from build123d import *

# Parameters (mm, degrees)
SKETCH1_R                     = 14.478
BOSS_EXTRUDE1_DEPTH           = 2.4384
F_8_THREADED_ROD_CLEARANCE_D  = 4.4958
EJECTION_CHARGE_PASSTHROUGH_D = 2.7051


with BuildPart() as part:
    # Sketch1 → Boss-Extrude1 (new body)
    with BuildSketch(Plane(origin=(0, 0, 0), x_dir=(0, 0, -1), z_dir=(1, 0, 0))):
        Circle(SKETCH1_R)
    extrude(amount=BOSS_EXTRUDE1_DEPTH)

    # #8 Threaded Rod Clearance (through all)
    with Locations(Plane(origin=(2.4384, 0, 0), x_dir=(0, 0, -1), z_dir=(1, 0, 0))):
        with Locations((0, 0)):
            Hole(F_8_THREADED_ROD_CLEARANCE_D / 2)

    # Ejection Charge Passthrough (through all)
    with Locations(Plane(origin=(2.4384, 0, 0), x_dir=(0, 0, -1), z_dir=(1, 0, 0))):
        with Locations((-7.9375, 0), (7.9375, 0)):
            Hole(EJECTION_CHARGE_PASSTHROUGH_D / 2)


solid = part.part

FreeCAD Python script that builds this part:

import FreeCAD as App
import Part
import Sketcher
from FreeCAD import Vector
Q = App.Units.Quantity

doc = App.newDocument("Part")
body = doc.addObject("PartDesign::Body", "Body")

# Sketch on YZ plane
sketch1 = doc.addObject("Sketcher::SketchObject", "Sketch")
body.addObject(sketch1)
sketch1.AttachmentSupport = (doc.YZ_Plane, [""])
sketch1.MapMode = "FlatFace"
sketch1.addGeometry(Part.Circle(Vector(0, 0, 0), Vector(0, 0, 1), 14), False)
sketch1.addConstraint(Sketcher.Constraint("Coincident", 0, 3, -1, 1))
sketch1.addConstraint(Sketcher.Constraint("Diameter", 0, Q("1.14 in")))
pad1 = doc.addObject("PartDesign::Pad", "Pad")
body.addObject(pad1)
pad1.Profile = sketch1
pad1.Length = Q("0.096 in")

# Sketch on YZ plane
sketch2 = doc.addObject("Sketcher::SketchObject", "Sketch001")
body.addObject(sketch2)
sketch2.AttachmentSupport = (doc.YZ_Plane, [""])
sketch2.MapMode = "FlatFace"
sketch2.AttachmentOffset = App.Placement(Vector(0, 0, 0.096 * 25.4), App.Rotation())
sketch2.addGeometry(Part.Circle(Vector(0, 0, 0), Vector(0, 0, 1), 2.2), False)
sketch2.addConstraint(Sketcher.Constraint("Coincident", 0, 3, -1, 1))
sketch2.addConstraint(Sketcher.Constraint("Diameter", 0, Q("0.177 in")))
doc.recompute()
hole = doc.addObject("PartDesign::Hole", "Hole")
body.addObject(hole)
hole.Profile = sketch2
hole.ThreadType = "None"
hole.Diameter = Q("0.177 in")
hole.DepthType = "ThroughAll"

# Sketch on YZ plane
sketch3 = doc.addObject("Sketcher::SketchObject", "Sketch002")
body.addObject(sketch3)
sketch3.AttachmentSupport = (doc.YZ_Plane, [""])
sketch3.MapMode = "FlatFace"
sketch3.AttachmentOffset = App.Placement(Vector(0, 0, 0.096 * 25.4), App.Rotation())
sketch3.addGeometry(Part.Circle(Vector(0, 7.9, 0), Vector(0, 0, 1), 1.4), False)
sketch3.addGeometry(Part.Circle(Vector(0, -7.9, 0), Vector(0, 0, 1), 1.4), False)
sketch3.addConstraint(Sketcher.Constraint("Equal", 0, 1))
sketch3.addConstraint(Sketcher.Constraint("Symmetric", 0, 3, 1, 3, -1, 1))
sketch3.addConstraint(Sketcher.Constraint("PointOnObject", 0, 3, -2))
sketch3.addConstraint(Sketcher.Constraint("Diameter", 0, Q("0.1065 in")))
sketch3.addConstraint(Sketcher.Constraint("DistanceY", -1, 1, 0, 3, Q("0.3125 in")))
doc.recompute()
hole2 = doc.addObject("PartDesign::Hole", "Hole001")
body.addObject(hole2)
hole2.Profile = sketch3
hole2.ThreadType = "None"
hole2.Diameter = Q("0.1065 in")
hole2.DepthType = "ThroughAll"

doc.recompute()
